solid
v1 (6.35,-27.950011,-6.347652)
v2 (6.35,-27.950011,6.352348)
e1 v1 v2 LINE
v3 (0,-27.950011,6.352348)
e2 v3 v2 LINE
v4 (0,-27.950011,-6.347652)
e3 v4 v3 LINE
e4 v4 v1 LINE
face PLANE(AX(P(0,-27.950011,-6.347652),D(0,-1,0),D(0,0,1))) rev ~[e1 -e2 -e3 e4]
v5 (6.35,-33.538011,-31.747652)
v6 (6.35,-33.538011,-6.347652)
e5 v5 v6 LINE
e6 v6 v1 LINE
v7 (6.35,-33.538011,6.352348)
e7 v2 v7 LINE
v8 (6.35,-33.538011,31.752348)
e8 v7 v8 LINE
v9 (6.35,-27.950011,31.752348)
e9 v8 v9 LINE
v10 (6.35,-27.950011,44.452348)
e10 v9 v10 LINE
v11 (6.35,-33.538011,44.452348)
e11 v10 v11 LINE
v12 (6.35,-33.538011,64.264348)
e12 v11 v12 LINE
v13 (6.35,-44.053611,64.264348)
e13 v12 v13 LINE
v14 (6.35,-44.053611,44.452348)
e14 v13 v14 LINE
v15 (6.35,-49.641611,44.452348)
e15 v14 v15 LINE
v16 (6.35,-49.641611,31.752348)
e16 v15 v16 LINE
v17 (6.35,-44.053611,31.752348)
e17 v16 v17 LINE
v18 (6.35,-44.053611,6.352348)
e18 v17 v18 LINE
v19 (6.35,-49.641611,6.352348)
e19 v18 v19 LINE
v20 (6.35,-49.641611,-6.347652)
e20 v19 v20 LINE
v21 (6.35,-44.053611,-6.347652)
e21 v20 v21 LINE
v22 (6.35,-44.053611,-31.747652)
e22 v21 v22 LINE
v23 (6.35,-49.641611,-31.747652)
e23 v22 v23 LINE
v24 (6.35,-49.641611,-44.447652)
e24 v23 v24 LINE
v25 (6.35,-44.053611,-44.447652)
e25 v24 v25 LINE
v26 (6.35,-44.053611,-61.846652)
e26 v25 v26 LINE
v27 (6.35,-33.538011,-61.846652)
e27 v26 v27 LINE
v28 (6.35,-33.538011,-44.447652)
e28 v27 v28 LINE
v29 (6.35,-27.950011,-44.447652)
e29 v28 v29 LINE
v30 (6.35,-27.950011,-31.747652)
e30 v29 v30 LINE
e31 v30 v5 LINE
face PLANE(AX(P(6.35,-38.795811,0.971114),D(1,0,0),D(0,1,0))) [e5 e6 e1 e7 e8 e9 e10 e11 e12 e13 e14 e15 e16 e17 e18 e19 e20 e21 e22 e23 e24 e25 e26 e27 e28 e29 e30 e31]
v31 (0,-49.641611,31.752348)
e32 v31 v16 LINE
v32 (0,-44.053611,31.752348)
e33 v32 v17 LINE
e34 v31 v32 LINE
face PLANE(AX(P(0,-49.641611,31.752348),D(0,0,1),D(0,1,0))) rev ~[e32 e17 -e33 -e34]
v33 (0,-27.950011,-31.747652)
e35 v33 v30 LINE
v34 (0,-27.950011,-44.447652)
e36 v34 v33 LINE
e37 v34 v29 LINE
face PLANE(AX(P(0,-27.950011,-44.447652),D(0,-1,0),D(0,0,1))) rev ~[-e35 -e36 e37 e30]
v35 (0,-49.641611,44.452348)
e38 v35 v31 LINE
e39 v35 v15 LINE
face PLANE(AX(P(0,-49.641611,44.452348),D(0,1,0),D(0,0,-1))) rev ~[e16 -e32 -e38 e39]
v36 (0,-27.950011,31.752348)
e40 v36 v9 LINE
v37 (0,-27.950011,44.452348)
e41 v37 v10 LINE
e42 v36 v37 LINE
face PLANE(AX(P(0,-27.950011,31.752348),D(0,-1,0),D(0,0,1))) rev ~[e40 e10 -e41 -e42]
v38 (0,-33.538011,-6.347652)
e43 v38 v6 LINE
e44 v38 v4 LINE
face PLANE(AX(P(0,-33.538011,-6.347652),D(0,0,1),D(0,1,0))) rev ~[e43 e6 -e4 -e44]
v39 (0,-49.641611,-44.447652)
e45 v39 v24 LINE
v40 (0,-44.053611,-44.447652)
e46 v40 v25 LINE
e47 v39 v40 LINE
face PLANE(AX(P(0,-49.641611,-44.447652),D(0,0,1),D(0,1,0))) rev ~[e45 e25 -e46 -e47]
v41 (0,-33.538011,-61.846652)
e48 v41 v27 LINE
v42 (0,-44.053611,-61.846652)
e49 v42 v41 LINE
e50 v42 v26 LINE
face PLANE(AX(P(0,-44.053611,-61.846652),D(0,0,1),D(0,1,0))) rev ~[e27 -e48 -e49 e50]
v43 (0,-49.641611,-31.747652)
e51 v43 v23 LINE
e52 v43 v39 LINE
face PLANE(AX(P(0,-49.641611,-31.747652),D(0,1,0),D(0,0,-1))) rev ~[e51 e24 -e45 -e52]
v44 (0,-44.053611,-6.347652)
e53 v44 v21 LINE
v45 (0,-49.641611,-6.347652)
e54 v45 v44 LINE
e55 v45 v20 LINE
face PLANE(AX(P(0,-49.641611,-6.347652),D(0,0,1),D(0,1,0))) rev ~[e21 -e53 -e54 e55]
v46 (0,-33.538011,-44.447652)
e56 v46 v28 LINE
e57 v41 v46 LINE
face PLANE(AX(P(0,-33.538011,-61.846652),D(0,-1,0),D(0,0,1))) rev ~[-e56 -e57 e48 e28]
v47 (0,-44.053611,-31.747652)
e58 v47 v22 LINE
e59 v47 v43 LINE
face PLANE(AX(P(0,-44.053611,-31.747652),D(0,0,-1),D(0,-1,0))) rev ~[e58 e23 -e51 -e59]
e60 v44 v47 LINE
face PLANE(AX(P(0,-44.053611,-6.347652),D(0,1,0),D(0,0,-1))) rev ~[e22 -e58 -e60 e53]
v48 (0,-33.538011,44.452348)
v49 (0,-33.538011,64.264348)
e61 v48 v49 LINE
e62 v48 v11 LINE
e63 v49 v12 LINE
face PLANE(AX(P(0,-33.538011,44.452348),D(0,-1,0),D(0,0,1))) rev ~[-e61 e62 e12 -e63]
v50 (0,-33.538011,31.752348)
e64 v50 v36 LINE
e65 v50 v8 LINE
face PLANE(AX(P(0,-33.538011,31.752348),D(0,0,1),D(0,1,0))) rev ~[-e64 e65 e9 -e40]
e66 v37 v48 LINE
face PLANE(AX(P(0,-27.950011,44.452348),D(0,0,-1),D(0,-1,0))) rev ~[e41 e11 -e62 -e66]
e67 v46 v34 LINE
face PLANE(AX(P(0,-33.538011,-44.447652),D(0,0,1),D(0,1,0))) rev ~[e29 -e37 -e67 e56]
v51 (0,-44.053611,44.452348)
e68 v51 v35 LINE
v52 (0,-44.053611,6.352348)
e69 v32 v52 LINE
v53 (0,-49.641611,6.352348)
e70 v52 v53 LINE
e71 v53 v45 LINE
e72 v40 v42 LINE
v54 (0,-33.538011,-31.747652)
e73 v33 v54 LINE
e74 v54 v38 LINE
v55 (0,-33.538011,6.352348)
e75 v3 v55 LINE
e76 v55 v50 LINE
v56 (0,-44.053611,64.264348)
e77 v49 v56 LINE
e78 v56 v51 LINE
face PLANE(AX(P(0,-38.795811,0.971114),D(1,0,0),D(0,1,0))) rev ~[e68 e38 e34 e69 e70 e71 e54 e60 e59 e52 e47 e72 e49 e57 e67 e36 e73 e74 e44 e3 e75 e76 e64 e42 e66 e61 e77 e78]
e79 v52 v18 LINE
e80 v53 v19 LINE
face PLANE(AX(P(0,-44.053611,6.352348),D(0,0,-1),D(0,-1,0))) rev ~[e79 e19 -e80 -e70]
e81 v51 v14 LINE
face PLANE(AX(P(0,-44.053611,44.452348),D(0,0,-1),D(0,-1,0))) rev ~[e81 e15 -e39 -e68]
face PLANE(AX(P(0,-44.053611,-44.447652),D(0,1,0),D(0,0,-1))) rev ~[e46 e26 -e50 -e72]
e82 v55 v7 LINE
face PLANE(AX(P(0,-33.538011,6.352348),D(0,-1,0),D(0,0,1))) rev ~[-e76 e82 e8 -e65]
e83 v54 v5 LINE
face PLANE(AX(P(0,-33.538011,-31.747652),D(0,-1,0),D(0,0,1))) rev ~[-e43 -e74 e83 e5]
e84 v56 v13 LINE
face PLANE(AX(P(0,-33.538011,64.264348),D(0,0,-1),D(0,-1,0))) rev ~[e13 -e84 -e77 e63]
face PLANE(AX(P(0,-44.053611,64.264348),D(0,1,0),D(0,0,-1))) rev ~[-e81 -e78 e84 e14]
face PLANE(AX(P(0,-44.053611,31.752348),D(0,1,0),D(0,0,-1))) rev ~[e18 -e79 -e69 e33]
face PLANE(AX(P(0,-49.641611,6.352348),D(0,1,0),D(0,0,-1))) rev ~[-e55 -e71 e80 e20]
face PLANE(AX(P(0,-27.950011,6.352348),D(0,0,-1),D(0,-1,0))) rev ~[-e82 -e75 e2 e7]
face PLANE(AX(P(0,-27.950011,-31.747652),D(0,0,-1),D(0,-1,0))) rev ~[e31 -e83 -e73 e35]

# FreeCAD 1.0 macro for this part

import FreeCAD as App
import Part
import Sketcher
from FreeCAD import Vector
Q = App.Units.Quantity


def add_polygon(sketch, points):
    """Adds a closed chain of lines whose ends are joined by coincident constraints."""
    first, n = sketch.GeometryCount, len(points)
    for a, b in zip(points, points[1:] + points[:1]):
        sketch.addGeometry(Part.LineSegment(App.Vector(*a, 0), App.Vector(*b, 0)), False)
    for i in range(n):
        sketch.addConstraint(Sketcher.Constraint("Coincident", first + i, 2, first + (i + 1) % n, 1))

doc = App.newDocument("Part")
params = doc.addObject("Spreadsheet::Sheet", "Params")
for row, (alias, value) in enumerate([
    ("sketch1_height", "1 in"),
    ("sketch1_height2", "0.5 in"),
    ("sketch1_width", "0.22 in"),
    ("sketch1_height3", "0.78 in"),
    ("sketch1_width2", "0.414 in"),
    ("pad1_length", "0.25 in"),
], start=1):
    params.set(f"A{row}", alias)
    params.set(f"B{row}", "=" + value)
    params.setAlias(f"B{row}", alias)

body = doc.addObject("PartDesign::Body", "Body")

# Sketch on YZ plane
sketch1 = body.newObject("Sketcher::SketchObject", "Sketch")
sketch1.AttachmentSupport = (doc.getObject("YZ_Plane"), [""])
sketch1.MapMode = "FlatFace"
add_polygon(sketch1, [(-34, 64), (-44, 64), (-44, 44), (-50, 44), (-50, 32), (-44, 32), (-44, 6), (-50, 6), (-50, -6), (-44, -6), (-44, -32), (-50, -32), (-50, -44), (-44, -44), (-44, -62), (-34, -62), (-34, -44), (-28, -44), (-28, -32), (-34, -32), (-34, -6), (-28, -6), (-28, 6), (-34, 6), (-34, 32), (-28, 32), (-28, 44), (-34, 44)])  # lines 0-27
sketch1.addConstraint(Sketcher.Constraint("Horizontal", 0))
sketch1.addConstraint(Sketcher.Constraint("Vertical", 1))
sketch1.addConstraint(Sketcher.Constraint("Horizontal", 2))
sketch1.addConstraint(Sketcher.Constraint("Vertical", 3))
sketch1.addConstraint(Sketcher.Constraint("Horizontal", 4))
sketch1.addConstraint(Sketcher.Constraint("Vertical", 5))
sketch1.addConstraint(Sketcher.Constraint("Horizontal", 6))
sketch1.addConstraint(Sketcher.Constraint("Vertical", 7))
sketch1.addConstraint(Sketcher.Constraint("Horizontal", 8))
sketch1.addConstraint(Sketcher.Constraint("Vertical", 9))
sketch1.addConstraint(Sketcher.Constraint("Horizontal", 10))
sketch1.addConstraint(Sketcher.Constraint("Vertical", 11))
sketch1.addConstraint(Sketcher.Constraint("Horizontal", 12))
sketch1.addConstraint(Sketcher.Constraint("Vertical", 13))
sketch1.addConstraint(Sketcher.Constraint("Horizontal", 14))
sketch1.addConstraint(Sketcher.Constraint("Vertical", 15))
sketch1.addConstraint(Sketcher.Constraint("Horizontal", 16))
sketch1.addConstraint(Sketcher.Constraint("Vertical", 17))
sketch1.addConstraint(Sketcher.Constraint("Horizontal", 18))
sketch1.addConstraint(Sketcher.Constraint("Vertical", 19))
sketch1.addConstraint(Sketcher.Constraint("Horizontal", 20))
sketch1.addConstraint(Sketcher.Constraint("Vertical", 21))
sketch1.addConstraint(Sketcher.Constraint("Horizontal", 22))
sketch1.addConstraint(Sketcher.Constraint("Vertical", 23))
sketch1.addConstraint(Sketcher.Constraint("Horizontal", 24))
sketch1.addConstraint(Sketcher.Constraint("Vertical", 25))
sketch1.addConstraint(Sketcher.Constraint("Horizontal", 26))
sketch1.addConstraint(Sketcher.Constraint("Vertical", 27))
sketch1.addConstraint(Sketcher.Constraint("Horizontal", 12, 2, 15, 2))
sketch1.addConstraint(Sketcher.Constraint("Horizontal", 10, 2, 17, 2))
sketch1.addConstraint(Sketcher.Constraint("Horizontal", 8, 2, 19, 2))
sketch1.addConstraint(Sketcher.Constraint("Horizontal", 6, 2, 21, 2))
sketch1.addConstraint(Sketcher.Constraint("Horizontal", 4, 2, 23, 2))
sketch1.addConstraint(Sketcher.Constraint("Horizontal", 2, 2, 25, 2))
sketch1.addConstraint(Sketcher.Constraint("Vertical", 1, 2, 4, 2))
sketch1.addConstraint(Sketcher.Constraint("Vertical", 3, 2, 6, 2))
sketch1.addConstraint(Sketcher.Constraint("Vertical", 5, 2, 8, 2))
sketch1.addConstraint(Sketcher.Constraint("Vertical", 7, 2, 10, 2))
sketch1.addConstraint(Sketcher.Constraint("Vertical", 9, 2, 12, 2))
sketch1.addConstraint(Sketcher.Constraint("Vertical", 15, 2, 18, 2))
sketch1.addConstraint(Sketcher.Constraint("Vertical", 17, 2, 20, 2))
sketch1.addConstraint(Sketcher.Constraint("Vertical", 19, 2, 22, 2))
sketch1.addConstraint(Sketcher.Constraint("Vertical", 21, 2, 24, 2))
sketch1.addConstraint(Sketcher.Constraint("Vertical", 23, 2, 26, 2))
sketch1.addConstraint(Sketcher.Constraint("Equal", 12, 16))
sketch1.addConstraint(Sketcher.Constraint("Equal", 3, 7))
sketch1.addConstraint(Sketcher.Constraint("Equal", 5, 9))
sketch1.addConstraint(Sketcher.Constraint("Equal", 7, 11))
sketch1.addConstraint(Sketcher.Constraint("DistanceY", 5, 2, 5, 1, Q("1 in")))
sketch1.addConstraint(Sketcher.Constraint("DistanceY", 3, 2, 3, 1, Q("0.5 in")))
sketch1.addConstraint(Sketcher.Constraint("DistanceX", 2, 2, 2, 1, Q("0.22 in")))
sketch1.addConstraint(Sketcher.Constraint("DistanceY", 1, 2, 1, 1, Q("0.78 in")))
sketch1.addConstraint(Sketcher.Constraint("DistanceX", 0, 2, 0, 1, Q("0.414 in")))
sketch1.addConstraint(Sketcher.Constraint("DistanceY", 13, 2, 13, 1, Q("0.685 in")))
sketch1.addConstraint(Sketcher.Constraint("DistanceX", 0, 2, -1, 1, Q("44.053611 mm")))
sketch1.addConstraint(Sketcher.Constraint("DistanceY", -1, 1, 0, 2, Q("64.264348 mm")))
sketch1.setExpression("Constraints[76]", "Params.sketch1_height")
sketch1.setExpression("Constraints[77]", "Params.sketch1_height2")
sketch1.setExpression("Constraints[78]", "Params.sketch1_width")
sketch1.setExpression("Constraints[79]", "Params.sketch1_height3")
sketch1.setExpression("Constraints[80]", "Params.sketch1_width2")
pad1 = body.newObject("PartDesign::Pad", "Pad")
pad1.Profile = sketch1
pad1.setExpression("Length", "Params.pad1_length")

doc.recompute()
